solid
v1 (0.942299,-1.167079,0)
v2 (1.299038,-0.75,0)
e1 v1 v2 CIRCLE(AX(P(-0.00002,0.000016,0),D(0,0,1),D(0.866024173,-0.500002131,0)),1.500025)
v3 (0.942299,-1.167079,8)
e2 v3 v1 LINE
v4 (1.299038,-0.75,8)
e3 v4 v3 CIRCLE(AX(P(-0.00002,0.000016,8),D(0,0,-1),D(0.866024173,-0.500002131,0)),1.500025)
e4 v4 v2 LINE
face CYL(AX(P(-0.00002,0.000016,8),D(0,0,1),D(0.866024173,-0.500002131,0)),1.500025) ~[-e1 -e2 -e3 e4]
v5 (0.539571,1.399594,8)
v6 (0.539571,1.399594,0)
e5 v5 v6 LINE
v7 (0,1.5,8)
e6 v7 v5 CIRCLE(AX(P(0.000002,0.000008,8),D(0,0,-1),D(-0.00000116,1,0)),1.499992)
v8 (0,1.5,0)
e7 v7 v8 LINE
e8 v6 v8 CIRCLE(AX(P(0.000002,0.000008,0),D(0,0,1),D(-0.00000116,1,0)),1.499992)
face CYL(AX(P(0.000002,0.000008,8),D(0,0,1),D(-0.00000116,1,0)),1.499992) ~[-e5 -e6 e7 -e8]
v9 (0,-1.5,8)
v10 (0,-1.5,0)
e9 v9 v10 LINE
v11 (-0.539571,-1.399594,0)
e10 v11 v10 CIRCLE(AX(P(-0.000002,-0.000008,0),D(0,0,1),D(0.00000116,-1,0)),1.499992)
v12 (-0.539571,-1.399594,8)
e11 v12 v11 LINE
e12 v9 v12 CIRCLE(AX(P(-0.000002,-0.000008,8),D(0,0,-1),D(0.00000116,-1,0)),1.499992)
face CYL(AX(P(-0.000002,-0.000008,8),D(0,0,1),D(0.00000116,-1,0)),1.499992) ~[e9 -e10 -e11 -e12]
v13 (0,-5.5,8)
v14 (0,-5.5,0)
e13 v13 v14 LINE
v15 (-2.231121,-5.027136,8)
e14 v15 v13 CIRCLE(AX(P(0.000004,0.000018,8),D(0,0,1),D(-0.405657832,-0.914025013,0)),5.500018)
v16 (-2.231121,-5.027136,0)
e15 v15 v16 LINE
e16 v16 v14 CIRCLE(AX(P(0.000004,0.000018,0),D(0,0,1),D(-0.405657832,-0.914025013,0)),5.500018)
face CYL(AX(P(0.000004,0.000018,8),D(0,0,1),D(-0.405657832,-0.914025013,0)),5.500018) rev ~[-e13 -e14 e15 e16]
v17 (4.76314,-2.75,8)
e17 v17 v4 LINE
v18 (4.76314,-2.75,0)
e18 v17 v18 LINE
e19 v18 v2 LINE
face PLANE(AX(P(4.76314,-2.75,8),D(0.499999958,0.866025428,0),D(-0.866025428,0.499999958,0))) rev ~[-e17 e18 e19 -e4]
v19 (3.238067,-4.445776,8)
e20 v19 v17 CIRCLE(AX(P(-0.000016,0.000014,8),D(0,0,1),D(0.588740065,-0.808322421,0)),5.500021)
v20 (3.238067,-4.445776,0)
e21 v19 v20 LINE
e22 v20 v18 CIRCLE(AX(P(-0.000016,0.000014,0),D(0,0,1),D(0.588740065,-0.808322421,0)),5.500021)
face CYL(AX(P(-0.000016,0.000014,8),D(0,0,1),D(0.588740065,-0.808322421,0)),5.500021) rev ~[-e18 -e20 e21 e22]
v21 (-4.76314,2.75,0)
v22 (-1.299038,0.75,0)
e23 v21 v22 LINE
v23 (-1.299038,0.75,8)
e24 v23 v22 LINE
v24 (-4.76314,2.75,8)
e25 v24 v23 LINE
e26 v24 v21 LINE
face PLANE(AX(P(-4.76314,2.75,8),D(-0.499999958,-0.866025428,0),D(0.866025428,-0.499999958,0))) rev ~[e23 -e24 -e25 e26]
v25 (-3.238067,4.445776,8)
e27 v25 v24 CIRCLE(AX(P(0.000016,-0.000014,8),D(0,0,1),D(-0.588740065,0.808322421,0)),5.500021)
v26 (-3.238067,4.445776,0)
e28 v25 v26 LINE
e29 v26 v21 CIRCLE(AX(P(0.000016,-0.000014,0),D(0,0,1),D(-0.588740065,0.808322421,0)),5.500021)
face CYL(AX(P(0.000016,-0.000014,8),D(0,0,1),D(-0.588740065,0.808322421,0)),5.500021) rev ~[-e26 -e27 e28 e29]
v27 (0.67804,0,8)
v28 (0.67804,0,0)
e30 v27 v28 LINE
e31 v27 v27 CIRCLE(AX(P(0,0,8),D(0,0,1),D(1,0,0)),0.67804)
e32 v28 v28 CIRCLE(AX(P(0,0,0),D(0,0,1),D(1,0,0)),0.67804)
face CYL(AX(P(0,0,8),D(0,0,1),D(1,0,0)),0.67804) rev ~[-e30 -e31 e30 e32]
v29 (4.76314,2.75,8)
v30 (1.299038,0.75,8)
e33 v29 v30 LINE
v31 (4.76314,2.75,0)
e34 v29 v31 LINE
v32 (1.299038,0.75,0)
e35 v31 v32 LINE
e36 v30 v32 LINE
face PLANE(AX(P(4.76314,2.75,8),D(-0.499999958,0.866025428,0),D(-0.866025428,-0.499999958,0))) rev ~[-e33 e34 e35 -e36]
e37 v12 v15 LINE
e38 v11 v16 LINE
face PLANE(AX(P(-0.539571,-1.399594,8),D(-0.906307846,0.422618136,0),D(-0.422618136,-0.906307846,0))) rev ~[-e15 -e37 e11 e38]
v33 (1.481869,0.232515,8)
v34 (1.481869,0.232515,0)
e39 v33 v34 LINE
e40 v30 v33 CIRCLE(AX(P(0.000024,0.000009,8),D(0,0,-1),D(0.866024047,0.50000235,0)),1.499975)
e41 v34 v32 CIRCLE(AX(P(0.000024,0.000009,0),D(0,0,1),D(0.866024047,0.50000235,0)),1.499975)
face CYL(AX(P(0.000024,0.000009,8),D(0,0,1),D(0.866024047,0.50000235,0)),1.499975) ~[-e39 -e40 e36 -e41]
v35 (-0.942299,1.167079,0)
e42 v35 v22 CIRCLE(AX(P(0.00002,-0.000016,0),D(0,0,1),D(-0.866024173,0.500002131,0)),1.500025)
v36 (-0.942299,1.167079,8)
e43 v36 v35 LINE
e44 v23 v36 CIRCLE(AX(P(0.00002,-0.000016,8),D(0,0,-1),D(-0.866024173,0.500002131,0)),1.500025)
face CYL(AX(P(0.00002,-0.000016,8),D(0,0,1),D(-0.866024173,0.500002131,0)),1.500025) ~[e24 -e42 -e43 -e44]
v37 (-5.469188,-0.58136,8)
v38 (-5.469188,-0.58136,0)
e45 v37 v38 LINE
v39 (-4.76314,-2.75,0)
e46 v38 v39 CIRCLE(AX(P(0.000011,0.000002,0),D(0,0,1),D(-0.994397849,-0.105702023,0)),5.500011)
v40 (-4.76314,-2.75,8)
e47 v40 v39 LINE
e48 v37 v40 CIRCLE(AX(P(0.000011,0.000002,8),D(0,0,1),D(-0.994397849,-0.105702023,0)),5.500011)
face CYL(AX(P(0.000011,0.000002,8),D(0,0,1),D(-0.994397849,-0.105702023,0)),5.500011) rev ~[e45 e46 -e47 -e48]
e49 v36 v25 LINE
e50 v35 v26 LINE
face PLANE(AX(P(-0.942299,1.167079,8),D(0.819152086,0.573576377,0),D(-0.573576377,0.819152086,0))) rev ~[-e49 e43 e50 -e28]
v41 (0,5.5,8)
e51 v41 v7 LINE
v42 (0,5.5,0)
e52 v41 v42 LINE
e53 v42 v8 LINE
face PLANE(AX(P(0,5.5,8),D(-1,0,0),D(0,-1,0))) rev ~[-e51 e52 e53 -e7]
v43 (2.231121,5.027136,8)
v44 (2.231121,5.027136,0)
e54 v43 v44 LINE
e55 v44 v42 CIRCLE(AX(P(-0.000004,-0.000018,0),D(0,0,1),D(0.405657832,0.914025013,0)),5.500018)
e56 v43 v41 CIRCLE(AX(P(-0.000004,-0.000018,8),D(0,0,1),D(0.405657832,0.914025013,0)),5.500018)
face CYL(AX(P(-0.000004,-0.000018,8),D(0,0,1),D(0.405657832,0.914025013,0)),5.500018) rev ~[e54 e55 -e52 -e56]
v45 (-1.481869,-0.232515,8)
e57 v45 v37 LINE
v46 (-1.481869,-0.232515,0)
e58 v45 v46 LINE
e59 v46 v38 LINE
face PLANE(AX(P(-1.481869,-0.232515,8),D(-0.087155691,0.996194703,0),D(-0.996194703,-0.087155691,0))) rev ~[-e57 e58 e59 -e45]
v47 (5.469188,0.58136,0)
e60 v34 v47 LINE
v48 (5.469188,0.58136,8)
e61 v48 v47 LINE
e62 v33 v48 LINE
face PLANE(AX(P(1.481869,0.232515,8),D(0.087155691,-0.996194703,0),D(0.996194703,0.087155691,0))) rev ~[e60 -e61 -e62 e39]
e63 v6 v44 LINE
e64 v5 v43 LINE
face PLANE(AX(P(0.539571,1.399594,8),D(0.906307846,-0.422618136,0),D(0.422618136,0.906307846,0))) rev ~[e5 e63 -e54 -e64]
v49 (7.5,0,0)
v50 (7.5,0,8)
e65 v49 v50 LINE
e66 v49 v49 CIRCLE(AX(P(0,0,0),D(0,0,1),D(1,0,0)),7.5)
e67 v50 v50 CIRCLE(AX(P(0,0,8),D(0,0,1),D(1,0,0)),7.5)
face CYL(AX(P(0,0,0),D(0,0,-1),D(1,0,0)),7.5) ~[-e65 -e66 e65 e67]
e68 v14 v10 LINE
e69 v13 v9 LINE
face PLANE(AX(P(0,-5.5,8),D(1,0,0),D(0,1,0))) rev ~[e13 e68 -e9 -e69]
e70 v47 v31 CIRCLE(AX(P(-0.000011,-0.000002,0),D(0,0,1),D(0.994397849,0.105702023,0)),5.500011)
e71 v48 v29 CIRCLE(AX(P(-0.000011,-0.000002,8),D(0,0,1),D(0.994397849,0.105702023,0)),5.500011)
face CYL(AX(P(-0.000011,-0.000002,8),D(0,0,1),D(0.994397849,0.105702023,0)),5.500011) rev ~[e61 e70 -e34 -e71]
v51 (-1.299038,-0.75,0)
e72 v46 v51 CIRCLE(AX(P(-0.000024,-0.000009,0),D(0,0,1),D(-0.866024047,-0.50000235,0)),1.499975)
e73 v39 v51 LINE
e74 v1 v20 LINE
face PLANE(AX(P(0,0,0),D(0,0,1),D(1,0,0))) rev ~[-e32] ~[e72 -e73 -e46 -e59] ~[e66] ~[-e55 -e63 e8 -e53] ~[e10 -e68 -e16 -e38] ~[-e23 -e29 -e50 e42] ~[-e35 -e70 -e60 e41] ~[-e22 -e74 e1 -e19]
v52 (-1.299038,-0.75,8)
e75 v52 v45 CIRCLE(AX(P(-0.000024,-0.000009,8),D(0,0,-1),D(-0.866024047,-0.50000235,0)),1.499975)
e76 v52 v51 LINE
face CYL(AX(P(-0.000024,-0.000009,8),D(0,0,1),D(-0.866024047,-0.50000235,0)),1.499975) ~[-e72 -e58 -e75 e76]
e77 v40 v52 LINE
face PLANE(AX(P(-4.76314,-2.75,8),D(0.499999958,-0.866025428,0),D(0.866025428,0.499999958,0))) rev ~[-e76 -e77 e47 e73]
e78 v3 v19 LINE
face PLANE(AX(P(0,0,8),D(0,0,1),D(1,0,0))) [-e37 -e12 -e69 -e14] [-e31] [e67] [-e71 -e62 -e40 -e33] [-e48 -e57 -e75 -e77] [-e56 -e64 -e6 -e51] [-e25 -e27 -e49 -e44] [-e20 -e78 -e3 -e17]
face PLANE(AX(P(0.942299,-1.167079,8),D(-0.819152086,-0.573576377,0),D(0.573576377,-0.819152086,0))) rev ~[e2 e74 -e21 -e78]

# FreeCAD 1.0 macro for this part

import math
import FreeCAD as App
import Part
import Sketcher
from FreeCAD import Vector
Q = App.Units.Quantity

doc = App.newDocument("Part")
body = doc.addObject("PartDesign::Body", "Body")

# Sketch on XY plane
sketch1 = body.newObject("Sketcher::SketchObject", "Sketch")
sketch1.AttachmentSupport = (doc.getObject("XY_Plane"), [""])
sketch1.MapMode = "FlatFace"
sketch1.addGeometry(Part.Circle(Vector(0, 0, 0), Vector(0, 0, 1), 8), False)
sketch1.addConstraint([
    Sketcher.Constraint("Coincident", 0, 3, -1, 1),
    Sketcher.Constraint("Diameter", 0, 15.0),
])
pad1 = body.newObject("PartDesign::Pad", "Pad")
pad1.Profile = sketch1
pad1.Length = 8

# Sketch on XY plane
sketch2 = body.newObject("Sketcher::SketchObject", "Sketch001")
sketch2.AttachmentSupport = (doc.getObject("XY_Plane"), [""])
sketch2.MapMode = "FlatFace"
sketch2.AttachmentOffset = App.Placement(Vector(0, 0, 8), App.Rotation())
sketch2.addGeometry([
    Part.ArcOfCircle(Part.Circle(Vector(0.000002, 0.000008, 0), Vector(0, 0, 1), 1.499992), math.radians(68.917317), math.radians(90.000066)),  # 0
    Part.LineSegment(Vector(0.539571, 1.399594, 0), Vector(2.231121, 5.027136, 0)),  # 1
    Part.ArcOfCircle(Part.Circle(Vector(-0.000004, -0.000018, 0), Vector(0, 0, 1), 5.500018), math.radians(66.067643), math.radians(89.999953)),  # 2
    Part.LineSegment(Vector(0, 5.5, 0), Vector(0, 1.5, 0)),  # 3
    Part.ArcOfCircle(Part.Circle(Vector(0.00002, -0.000016, 0), Vector(0, 0, 1), 1.500025), math.radians(128.917601), math.radians(149.999859)),  # 4
    Part.LineSegment(Vector(-0.942299, 1.167079, 0), Vector(-3.238067, 4.445776, 0)),  # 5
    Part.ArcOfCircle(Part.Circle(Vector(0.000016, -0.000014, 0), Vector(0, 0, 1), 5.500021), math.radians(126.06765), math.radians(149.999954)),  # 6
    Part.LineSegment(Vector(-4.76314, 2.75, 0), Vector(-1.299038, 0.75, 0)),  # 7
    Part.LineSegment(Vector(-4.76314, -2.75, 0), Vector(-1.299038, -0.75, 0)),  # 8
    Part.ArcOfCircle(Part.Circle(Vector(-0.000024, -0.000009, 0), Vector(0, 0, 1), 1.499975), math.radians(-171.082828), math.radians(-149.999845)),  # 9
    Part.LineSegment(Vector(-1.481869, -0.232515, 0), Vector(-5.469188, -0.58136, 0)),  # 10
    Part.ArcOfCircle(Part.Circle(Vector(0.000011, 0.000002, 0), Vector(0, 0, 1), 5.500011), math.radians(-173.932385), math.radians(-150.000039)),  # 11
    Part.LineSegment(Vector(0, -5.5, 0), Vector(0, -1.5, 0)),  # 12
    Part.ArcOfCircle(Part.Circle(Vector(-0.000002, -0.000008, 0), Vector(0, 0, 1), 1.499992), math.radians(-111.082683), math.radians(-89.999934)),  # 13
    Part.LineSegment(Vector(-0.539571, -1.399594, 0), Vector(-2.231121, -5.027136, 0)),  # 14
    Part.ArcOfCircle(Part.Circle(Vector(0.000004, 0.000018, 0), Vector(0, 0, 1), 5.500018), math.radians(-113.932357), math.radians(-90.000047)),  # 15
    Part.LineSegment(Vector(4.76314, -2.75, 0), Vector(1.299038, -0.75, 0)),  # 16
    Part.ArcOfCircle(Part.Circle(Vector(-0.00002, 0.000016, 0), Vector(0, 0, 1), 1.500025), math.radians(-51.082399), math.radians(-30.000141)),  # 17
    Part.LineSegment(Vector(0.942299, -1.167079, 0), Vector(3.238067, -4.445776, 0)),  # 18
    Part.ArcOfCircle(Part.Circle(Vector(-0.000016, 0.000014, 0), Vector(0, 0, 1), 5.500021), math.radians(-53.93235), math.radians(-30.000046)),  # 19
    Part.ArcOfCircle(Part.Circle(Vector(0.000024, 0.000009, 0), Vector(0, 0, 1), 1.499975), math.radians(8.917172), math.radians(30.000155)),  # 20
    Part.LineSegment(Vector(1.481869, 0.232515, 0), Vector(5.469188, 0.58136, 0)),  # 21
    Part.ArcOfCircle(Part.Circle(Vector(-0.000011, -0.000002, 0), Vector(0, 0, 1), 5.500011), math.radians(6.067615), math.radians(29.999961)),  # 22
    Part.LineSegment(Vector(4.76314, 2.75, 0), Vector(1.299038, 0.75, 0)),  # 23
], False)
sketch2.addConstraint([
    Sketcher.Constraint("Coincident", 0, 1, 1, 1),
    Sketcher.Constraint("Coincident", 1, 2, 2, 1),
    Sketcher.Constraint("Coincident", 2, 2, 3, 1),
    Sketcher.Constraint("Coincident", 3, 2, 0, 2),
    Sketcher.Constraint("Coincident", 4, 1, 5, 1),
    Sketcher.Constraint("Coincident", 5, 2, 6, 1),
    Sketcher.Constraint("Coincident", 6, 2, 7, 1),
    Sketcher.Constraint("Coincident", 7, 2, 4, 2),
    Sketcher.Constraint("Coincident", 8, 2, 9, 2),
    Sketcher.Constraint("Coincident", 9, 1, 10, 1),
    Sketcher.Constraint("Coincident", 10, 2, 11, 1),
    Sketcher.Constraint("Coincident", 11, 2, 8, 1),
    Sketcher.Constraint("Coincident", 12, 2, 13, 2),
    Sketcher.Constraint("Coincident", 13, 1, 14, 1),
    Sketcher.Constraint("Coincident", 14, 2, 15, 1),
    Sketcher.Constraint("Coincident", 15, 2, 12, 1),
    Sketcher.Constraint("Coincident", 16, 2, 17, 2),
    Sketcher.Constraint("Coincident", 17, 1, 18, 1),
    Sketcher.Constraint("Coincident", 18, 2, 19, 1),
    Sketcher.Constraint("Coincident", 19, 2, 16, 1),
    Sketcher.Constraint("Coincident", 20, 1, 21, 1),
    Sketcher.Constraint("Coincident", 21, 2, 22, 1),
    Sketcher.Constraint("Coincident", 22, 2, 23, 1),
    Sketcher.Constraint("Coincident", 23, 2, 20, 2),
    Sketcher.Constraint("Vertical", 3),
    Sketcher.Constraint("Vertical", 12),
    Sketcher.Constraint("Coincident", 0, 3, -1, 1),
    Sketcher.Constraint("Coincident", 13, 3, -1, 1),
    Sketcher.Constraint("Coincident", 6, 3, 4, 3),
    Sketcher.Constraint("Coincident", 19, 3, 17, 3),
    Sketcher.Constraint("Equal", 0, 13),
    Sketcher.Constraint("Equal", 2, 15),
    Sketcher.Constraint("Equal", 4, 17),
    Sketcher.Constraint("Equal", 6, 19),
    Sketcher.Constraint("Equal", 9, 20),
    Sketcher.Constraint("Equal", 11, 22),
    Sketcher.Constraint("Symmetric", 2, 3, 15, 3, -1, 1),
    Sketcher.Constraint("Symmetric", 4, 3, 17, 3, -1, 1),
    Sketcher.Constraint("Symmetric", 9, 3, 20, 3, -1, 1),
    Sketcher.Constraint("Symmetric", 11, 3, 22, 3, -1, 1),
    Sketcher.Constraint("Symmetric", 4, 3, 9, 3, -2),
    Sketcher.Constraint("Symmetric", 8, 2, 16, 2, -2),
    Sketcher.Constraint("Symmetric", 11, 2, 19, 2, -2),
    Sketcher.Constraint("PointOnObject", 2, 2, -2),
    Sketcher.Constraint("PointOnObject", 12, 2, -2),
    Sketcher.Constraint("Parallel", 1, 14),
    Sketcher.Constraint("Parallel", 7, 16),
    Sketcher.Constraint("Parallel", 5, 18),
    Sketcher.Constraint("Parallel", 10, 21),
    Sketcher.Constraint("Parallel", 8, 23),
    Sketcher.Constraint("Horizontal", 9, 3, 13, 3),
    Sketcher.Constraint("Horizontal", 6, 2, 22, 2),
    Sketcher.Constraint("Vertical", 7, 2, 8, 2),
    Sketcher.Constraint("Equal", 1, 5),
    Sketcher.Constraint("Equal", 5, 10),
    Sketcher.Constraint("Equal", 10, 14),
    Sketcher.Constraint("Equal", 14, 18),
    Sketcher.Constraint("Equal", 18, 21),
    Sketcher.Constraint("DistanceY", 3, 2, 3, 1, 4.0),
    Sketcher.Constraint("Angle", 1, Q("65.000008 deg")),
    Sketcher.Constraint("Angle", 5, Q("124.999996 deg")),
    Sketcher.Constraint("Angle", 7, Q("-29.999997 deg")),
    Sketcher.Constraint("Angle", 10, Q("-175.000003 deg")),
    Sketcher.Constraint("Distance", 7, 4.0),
    Sketcher.Constraint("DistanceY", -1, 1, 2, 2, 5.5),
    Sketcher.Constraint("DistanceY", 11, 2, 7, 2, 3.5),
    Sketcher.Constraint("Radius", 2, 5.500018),
    Sketcher.Constraint("Radius", 6, 5.500021),
    Sketcher.Constraint("Radius", 11, 5.500011),
    Sketcher.Constraint("Radius", 9, 1.499975),
    Sketcher.Constraint("DistanceX", 4, 1, -1, 1, 0.942299),
    Sketcher.Constraint("DistanceX", -1, 1, 0, 1, 0.539571),
    Sketcher.Constraint("DistanceX", 9, 1, -1, 1, 1.481869),
])
pocket1 = body.newObject("PartDesign::Pocket", "Pocket")
pocket1.Profile = sketch2
pocket1.Length = 100

# Sketch on XY plane
sketch3 = body.newObject("Sketcher::SketchObject", "Sketch002")
sketch3.AttachmentSupport = (doc.getObject("XY_Plane"), [""])
sketch3.MapMode = "FlatFace"
sketch3.AttachmentOffset = App.Placement(Vector(0, 0, 8), App.Rotation())
sketch3.addGeometry(Part.Circle(Vector(0, 0, 0), Vector(0, 0, 1), 0.7), False)
sketch3.addConstraint([
    Sketcher.Constraint("Coincident", 0, 3, -1, 1),
    Sketcher.Constraint("Diameter", 0, 1.35608),
])
pocket2 = body.newObject("PartDesign::Pocket", "Pocket001")
pocket2.Profile = sketch3
pocket2.Length = 100

doc.recompute()
